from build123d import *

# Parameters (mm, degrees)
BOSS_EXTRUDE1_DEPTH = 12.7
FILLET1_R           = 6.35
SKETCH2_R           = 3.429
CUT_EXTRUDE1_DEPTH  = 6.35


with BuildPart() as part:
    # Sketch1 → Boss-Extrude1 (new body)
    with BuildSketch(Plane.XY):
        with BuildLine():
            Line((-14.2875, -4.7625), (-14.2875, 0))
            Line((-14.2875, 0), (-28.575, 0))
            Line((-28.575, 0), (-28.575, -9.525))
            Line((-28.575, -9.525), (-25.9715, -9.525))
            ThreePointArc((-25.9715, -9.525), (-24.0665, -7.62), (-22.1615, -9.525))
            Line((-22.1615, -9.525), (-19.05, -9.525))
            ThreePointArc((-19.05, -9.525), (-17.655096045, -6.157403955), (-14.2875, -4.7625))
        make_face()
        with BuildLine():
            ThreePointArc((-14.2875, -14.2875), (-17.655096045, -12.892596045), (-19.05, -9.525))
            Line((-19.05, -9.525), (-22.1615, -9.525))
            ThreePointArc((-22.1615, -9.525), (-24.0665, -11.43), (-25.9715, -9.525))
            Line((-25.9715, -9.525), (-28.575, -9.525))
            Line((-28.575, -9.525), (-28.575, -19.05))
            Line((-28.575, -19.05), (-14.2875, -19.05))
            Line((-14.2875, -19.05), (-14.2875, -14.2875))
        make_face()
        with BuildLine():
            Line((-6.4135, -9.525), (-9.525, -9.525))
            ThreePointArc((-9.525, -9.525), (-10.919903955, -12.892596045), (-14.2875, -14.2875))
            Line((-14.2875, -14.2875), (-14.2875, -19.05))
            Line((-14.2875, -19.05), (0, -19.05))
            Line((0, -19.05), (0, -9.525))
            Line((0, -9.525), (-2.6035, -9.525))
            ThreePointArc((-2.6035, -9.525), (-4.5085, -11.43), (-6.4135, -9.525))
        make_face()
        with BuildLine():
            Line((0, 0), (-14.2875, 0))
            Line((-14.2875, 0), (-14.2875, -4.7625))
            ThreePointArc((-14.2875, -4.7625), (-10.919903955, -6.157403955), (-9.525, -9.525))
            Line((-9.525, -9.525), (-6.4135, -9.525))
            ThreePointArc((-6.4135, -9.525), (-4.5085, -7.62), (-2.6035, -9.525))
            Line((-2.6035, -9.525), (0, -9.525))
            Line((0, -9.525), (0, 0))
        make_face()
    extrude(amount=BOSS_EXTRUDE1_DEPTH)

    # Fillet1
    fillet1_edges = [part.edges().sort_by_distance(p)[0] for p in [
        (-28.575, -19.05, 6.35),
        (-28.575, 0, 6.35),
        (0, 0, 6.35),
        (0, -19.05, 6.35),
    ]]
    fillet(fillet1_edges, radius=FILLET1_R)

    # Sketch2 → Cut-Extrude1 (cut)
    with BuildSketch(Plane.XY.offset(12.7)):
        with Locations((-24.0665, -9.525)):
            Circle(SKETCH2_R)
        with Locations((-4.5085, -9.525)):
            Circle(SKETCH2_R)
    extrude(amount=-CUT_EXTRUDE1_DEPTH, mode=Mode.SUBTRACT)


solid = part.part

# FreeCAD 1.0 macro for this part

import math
import FreeCAD as App
import Part
import Sketcher
from FreeCAD import Vector
Q = App.Units.Quantity


def edges_at(feature, points):
    """Names of the edges that pass closest to the given points."""
    edges = feature.Shape.Edges
    near = lambda p: min(range(len(edges)), key=lambda i: edges[i].distToShape(Part.Vertex(*p))[0])
    return sorted({f"Edge{near(p) + 1}" for p in points})


def add_polygon(sketch, points):
    """Adds a closed chain of lines whose ends are joined by coincident constraints."""
    first, n = sketch.GeometryCount, len(points)
    for a, b in zip(points, points[1:] + points[:1]):
        sketch.addGeometry(Part.LineSegment(App.Vector(*a, 0), App.Vector(*b, 0)), False)
    for i in range(n):
        sketch.addConstraint(Sketcher.Constraint("Coincident", first + i, 2, first + (i + 1) % n, 1))

doc = App.newDocument("Part")
body = doc.addObject("PartDesign::Body", "Body")

sketch1 = body.newObject("Sketcher::SketchObject", "Sketch")
sketch1.AttachmentSupport = (doc.getObject("XY_Plane"), [""])
sketch1.MapMode = "FlatFace"
add_polygon(sketch1, [(-28.6, 0), (-28.6, -19.1), (0, -19.1), (0, 0)])
sketch1.addGeometry(Part.Circle(Vector(-4.5, -9.5, 0), Vector(0, 0, 1), 1.9), False)
sketch1.addGeometry(Part.ArcOfCircle(Part.Circle(Vector(-14.3, -9.5, 0), Vector(0, 0, 1), 4.8), math.radians(-90), math.radians(0)), False)
sketch1.addGeometry(Part.ArcOfCircle(Part.Circle(Vector(-14.3, -9.5, 0), Vector(0, 0, 1), 4.8), math.radians(-180), math.radians(-90)), False)
sketch1.addGeometry(Part.ArcOfCircle(Part.Circle(Vector(-14.3, -9.5, 0), Vector(0, 0, 1), 4.8), math.radians(90), math.radians(180)), False)
sketch1.addGeometry(Part.ArcOfCircle(Part.Circle(Vector(-14.3, -9.5, 0), Vector(0, 0, 1), 4.8), math.radians(0), math.radians(90)), False)
sketch1.addGeometry(Part.Circle(Vector(-24.1, -9.5, 0), Vector(0, 0, 1), 1.9), False)
sketch1.addConstraint(Sketcher.Constraint("Tangent", 5, 1, 6, 2))
sketch1.addConstraint(Sketcher.Constraint("Tangent", 6, 1, 7, 2))
sketch1.addConstraint(Sketcher.Constraint("Tangent", 7, 1, 8, 2))
sketch1.addConstraint(Sketcher.Constraint("Tangent", 8, 1, 5, 2))
sketch1.addConstraint(Sketcher.Constraint("Vertical", 0))
sketch1.addConstraint(Sketcher.Constraint("Horizontal", 1))
sketch1.addConstraint(Sketcher.Constraint("Vertical", 2))
sketch1.addConstraint(Sketcher.Constraint("Horizontal", 3))
sketch1.addConstraint(Sketcher.Constraint("Coincident", 2, 2, -1, 1))
sketch1.addConstraint(Sketcher.Constraint("Equal", 5, 6))
sketch1.addConstraint(Sketcher.Constraint("Equal", 4, 9))
sketch1.addConstraint(Sketcher.Constraint("Horizontal", 4, 3, 5, 3))
sketch1.addConstraint(Sketcher.Constraint("Horizontal", 8, 3, 9, 3))
sketch1.addConstraint(Sketcher.Constraint("Horizontal", 9, 3, 6, 1))
sketch1.addConstraint(Sketcher.Constraint("Horizontal", 6, 1, 8, 1))
sketch1.addConstraint(Sketcher.Constraint("Vertical", 8, 3, 5, 1))
sketch1.addConstraint(Sketcher.Constraint("Vertical", 5, 1, 7, 1))
sketch1.addConstraint(Sketcher.Constraint("Diameter", 4, Q("0.15 in")))
sketch1.addConstraint(Sketcher.Constraint("Radius", 5, Q("0.1875 in")))
sketch1.addConstraint(Sketcher.Constraint("DistanceY", 0, 2, 0, 1, Q("0.75 in")))
sketch1.addConstraint(Sketcher.Constraint("DistanceX", 1, 1, 1, 2, Q("1.125 in")))
sketch1.addConstraint(Sketcher.Constraint("DistanceX", 6, 1, -1, 1, Q("0.75 in")))
sketch1.addConstraint(Sketcher.Constraint("DistanceX", 9, 3, 4, 3, Q("0.77 in")))
sketch1.addConstraint(Sketcher.Constraint("DistanceY", 4, 3, -1, 1, Q("0.375 in")))
sketch1.addConstraint(Sketcher.Constraint("DistanceX", 5, 3, 4, 3, Q("0.385 in")))
pad1 = body.newObject("PartDesign::Pad", "Pad")
pad1.Profile = sketch1
pad1.Length = Q("0.5 in")
doc.recompute()

fillet = body.newObject("PartDesign::Fillet", "Fillet")
fillet.Base = (pad1, edges_at(pad1, [
    (-28.575, -19.05, 6.35),
    (-28.575, 0, 6.35),
    (0, 0, 6.35),
    (0, -19.05, 6.35),
]))
fillet.Radius = Q("0.25 in")

sketch2 = body.newObject("Sketcher::SketchObject", "Sketch001")
sketch2.AttachmentSupport = (doc.getObject("XY_Plane"), [""])
sketch2.MapMode = "FlatFace"
sketch2.AttachmentOffset = App.Placement(Vector(0, 0, 0.5 * 25.4), App.Rotation())
sketch2.addGeometry(Part.Circle(Vector(-24.1, -9.5, 0), Vector(0, 0, 1), 3.4), False)
sketch2.addGeometry(Part.Circle(Vector(-4.5, -9.5, 0), Vector(0, 0, 1), 3.4), False)
sketch2.addConstraint(Sketcher.Constraint("Equal", 0, 1))
sketch2.addConstraint(Sketcher.Constraint("Horizontal", 0, 3, 1, 3))
sketch2.addConstraint(Sketcher.Constraint("Diameter", 0, Q("0.27 in")))
sketch2.addConstraint(Sketcher.Constraint("DistanceX", 0, 3, 1, 3, Q("0.77 in")))
sketch2.addConstraint(Sketcher.Constraint("DistanceY", 0, 3, -1, 1, Q("0.375 in")))
sketch2.addConstraint(Sketcher.Constraint("DistanceX", 0, 3, -1, 1, Q("0.9475 in")))
pocket1 = body.newObject("PartDesign::Pocket", "Pocket")
pocket1.Profile = sketch2
pocket1.Length = Q("0.25 in")

doc.recompute()
